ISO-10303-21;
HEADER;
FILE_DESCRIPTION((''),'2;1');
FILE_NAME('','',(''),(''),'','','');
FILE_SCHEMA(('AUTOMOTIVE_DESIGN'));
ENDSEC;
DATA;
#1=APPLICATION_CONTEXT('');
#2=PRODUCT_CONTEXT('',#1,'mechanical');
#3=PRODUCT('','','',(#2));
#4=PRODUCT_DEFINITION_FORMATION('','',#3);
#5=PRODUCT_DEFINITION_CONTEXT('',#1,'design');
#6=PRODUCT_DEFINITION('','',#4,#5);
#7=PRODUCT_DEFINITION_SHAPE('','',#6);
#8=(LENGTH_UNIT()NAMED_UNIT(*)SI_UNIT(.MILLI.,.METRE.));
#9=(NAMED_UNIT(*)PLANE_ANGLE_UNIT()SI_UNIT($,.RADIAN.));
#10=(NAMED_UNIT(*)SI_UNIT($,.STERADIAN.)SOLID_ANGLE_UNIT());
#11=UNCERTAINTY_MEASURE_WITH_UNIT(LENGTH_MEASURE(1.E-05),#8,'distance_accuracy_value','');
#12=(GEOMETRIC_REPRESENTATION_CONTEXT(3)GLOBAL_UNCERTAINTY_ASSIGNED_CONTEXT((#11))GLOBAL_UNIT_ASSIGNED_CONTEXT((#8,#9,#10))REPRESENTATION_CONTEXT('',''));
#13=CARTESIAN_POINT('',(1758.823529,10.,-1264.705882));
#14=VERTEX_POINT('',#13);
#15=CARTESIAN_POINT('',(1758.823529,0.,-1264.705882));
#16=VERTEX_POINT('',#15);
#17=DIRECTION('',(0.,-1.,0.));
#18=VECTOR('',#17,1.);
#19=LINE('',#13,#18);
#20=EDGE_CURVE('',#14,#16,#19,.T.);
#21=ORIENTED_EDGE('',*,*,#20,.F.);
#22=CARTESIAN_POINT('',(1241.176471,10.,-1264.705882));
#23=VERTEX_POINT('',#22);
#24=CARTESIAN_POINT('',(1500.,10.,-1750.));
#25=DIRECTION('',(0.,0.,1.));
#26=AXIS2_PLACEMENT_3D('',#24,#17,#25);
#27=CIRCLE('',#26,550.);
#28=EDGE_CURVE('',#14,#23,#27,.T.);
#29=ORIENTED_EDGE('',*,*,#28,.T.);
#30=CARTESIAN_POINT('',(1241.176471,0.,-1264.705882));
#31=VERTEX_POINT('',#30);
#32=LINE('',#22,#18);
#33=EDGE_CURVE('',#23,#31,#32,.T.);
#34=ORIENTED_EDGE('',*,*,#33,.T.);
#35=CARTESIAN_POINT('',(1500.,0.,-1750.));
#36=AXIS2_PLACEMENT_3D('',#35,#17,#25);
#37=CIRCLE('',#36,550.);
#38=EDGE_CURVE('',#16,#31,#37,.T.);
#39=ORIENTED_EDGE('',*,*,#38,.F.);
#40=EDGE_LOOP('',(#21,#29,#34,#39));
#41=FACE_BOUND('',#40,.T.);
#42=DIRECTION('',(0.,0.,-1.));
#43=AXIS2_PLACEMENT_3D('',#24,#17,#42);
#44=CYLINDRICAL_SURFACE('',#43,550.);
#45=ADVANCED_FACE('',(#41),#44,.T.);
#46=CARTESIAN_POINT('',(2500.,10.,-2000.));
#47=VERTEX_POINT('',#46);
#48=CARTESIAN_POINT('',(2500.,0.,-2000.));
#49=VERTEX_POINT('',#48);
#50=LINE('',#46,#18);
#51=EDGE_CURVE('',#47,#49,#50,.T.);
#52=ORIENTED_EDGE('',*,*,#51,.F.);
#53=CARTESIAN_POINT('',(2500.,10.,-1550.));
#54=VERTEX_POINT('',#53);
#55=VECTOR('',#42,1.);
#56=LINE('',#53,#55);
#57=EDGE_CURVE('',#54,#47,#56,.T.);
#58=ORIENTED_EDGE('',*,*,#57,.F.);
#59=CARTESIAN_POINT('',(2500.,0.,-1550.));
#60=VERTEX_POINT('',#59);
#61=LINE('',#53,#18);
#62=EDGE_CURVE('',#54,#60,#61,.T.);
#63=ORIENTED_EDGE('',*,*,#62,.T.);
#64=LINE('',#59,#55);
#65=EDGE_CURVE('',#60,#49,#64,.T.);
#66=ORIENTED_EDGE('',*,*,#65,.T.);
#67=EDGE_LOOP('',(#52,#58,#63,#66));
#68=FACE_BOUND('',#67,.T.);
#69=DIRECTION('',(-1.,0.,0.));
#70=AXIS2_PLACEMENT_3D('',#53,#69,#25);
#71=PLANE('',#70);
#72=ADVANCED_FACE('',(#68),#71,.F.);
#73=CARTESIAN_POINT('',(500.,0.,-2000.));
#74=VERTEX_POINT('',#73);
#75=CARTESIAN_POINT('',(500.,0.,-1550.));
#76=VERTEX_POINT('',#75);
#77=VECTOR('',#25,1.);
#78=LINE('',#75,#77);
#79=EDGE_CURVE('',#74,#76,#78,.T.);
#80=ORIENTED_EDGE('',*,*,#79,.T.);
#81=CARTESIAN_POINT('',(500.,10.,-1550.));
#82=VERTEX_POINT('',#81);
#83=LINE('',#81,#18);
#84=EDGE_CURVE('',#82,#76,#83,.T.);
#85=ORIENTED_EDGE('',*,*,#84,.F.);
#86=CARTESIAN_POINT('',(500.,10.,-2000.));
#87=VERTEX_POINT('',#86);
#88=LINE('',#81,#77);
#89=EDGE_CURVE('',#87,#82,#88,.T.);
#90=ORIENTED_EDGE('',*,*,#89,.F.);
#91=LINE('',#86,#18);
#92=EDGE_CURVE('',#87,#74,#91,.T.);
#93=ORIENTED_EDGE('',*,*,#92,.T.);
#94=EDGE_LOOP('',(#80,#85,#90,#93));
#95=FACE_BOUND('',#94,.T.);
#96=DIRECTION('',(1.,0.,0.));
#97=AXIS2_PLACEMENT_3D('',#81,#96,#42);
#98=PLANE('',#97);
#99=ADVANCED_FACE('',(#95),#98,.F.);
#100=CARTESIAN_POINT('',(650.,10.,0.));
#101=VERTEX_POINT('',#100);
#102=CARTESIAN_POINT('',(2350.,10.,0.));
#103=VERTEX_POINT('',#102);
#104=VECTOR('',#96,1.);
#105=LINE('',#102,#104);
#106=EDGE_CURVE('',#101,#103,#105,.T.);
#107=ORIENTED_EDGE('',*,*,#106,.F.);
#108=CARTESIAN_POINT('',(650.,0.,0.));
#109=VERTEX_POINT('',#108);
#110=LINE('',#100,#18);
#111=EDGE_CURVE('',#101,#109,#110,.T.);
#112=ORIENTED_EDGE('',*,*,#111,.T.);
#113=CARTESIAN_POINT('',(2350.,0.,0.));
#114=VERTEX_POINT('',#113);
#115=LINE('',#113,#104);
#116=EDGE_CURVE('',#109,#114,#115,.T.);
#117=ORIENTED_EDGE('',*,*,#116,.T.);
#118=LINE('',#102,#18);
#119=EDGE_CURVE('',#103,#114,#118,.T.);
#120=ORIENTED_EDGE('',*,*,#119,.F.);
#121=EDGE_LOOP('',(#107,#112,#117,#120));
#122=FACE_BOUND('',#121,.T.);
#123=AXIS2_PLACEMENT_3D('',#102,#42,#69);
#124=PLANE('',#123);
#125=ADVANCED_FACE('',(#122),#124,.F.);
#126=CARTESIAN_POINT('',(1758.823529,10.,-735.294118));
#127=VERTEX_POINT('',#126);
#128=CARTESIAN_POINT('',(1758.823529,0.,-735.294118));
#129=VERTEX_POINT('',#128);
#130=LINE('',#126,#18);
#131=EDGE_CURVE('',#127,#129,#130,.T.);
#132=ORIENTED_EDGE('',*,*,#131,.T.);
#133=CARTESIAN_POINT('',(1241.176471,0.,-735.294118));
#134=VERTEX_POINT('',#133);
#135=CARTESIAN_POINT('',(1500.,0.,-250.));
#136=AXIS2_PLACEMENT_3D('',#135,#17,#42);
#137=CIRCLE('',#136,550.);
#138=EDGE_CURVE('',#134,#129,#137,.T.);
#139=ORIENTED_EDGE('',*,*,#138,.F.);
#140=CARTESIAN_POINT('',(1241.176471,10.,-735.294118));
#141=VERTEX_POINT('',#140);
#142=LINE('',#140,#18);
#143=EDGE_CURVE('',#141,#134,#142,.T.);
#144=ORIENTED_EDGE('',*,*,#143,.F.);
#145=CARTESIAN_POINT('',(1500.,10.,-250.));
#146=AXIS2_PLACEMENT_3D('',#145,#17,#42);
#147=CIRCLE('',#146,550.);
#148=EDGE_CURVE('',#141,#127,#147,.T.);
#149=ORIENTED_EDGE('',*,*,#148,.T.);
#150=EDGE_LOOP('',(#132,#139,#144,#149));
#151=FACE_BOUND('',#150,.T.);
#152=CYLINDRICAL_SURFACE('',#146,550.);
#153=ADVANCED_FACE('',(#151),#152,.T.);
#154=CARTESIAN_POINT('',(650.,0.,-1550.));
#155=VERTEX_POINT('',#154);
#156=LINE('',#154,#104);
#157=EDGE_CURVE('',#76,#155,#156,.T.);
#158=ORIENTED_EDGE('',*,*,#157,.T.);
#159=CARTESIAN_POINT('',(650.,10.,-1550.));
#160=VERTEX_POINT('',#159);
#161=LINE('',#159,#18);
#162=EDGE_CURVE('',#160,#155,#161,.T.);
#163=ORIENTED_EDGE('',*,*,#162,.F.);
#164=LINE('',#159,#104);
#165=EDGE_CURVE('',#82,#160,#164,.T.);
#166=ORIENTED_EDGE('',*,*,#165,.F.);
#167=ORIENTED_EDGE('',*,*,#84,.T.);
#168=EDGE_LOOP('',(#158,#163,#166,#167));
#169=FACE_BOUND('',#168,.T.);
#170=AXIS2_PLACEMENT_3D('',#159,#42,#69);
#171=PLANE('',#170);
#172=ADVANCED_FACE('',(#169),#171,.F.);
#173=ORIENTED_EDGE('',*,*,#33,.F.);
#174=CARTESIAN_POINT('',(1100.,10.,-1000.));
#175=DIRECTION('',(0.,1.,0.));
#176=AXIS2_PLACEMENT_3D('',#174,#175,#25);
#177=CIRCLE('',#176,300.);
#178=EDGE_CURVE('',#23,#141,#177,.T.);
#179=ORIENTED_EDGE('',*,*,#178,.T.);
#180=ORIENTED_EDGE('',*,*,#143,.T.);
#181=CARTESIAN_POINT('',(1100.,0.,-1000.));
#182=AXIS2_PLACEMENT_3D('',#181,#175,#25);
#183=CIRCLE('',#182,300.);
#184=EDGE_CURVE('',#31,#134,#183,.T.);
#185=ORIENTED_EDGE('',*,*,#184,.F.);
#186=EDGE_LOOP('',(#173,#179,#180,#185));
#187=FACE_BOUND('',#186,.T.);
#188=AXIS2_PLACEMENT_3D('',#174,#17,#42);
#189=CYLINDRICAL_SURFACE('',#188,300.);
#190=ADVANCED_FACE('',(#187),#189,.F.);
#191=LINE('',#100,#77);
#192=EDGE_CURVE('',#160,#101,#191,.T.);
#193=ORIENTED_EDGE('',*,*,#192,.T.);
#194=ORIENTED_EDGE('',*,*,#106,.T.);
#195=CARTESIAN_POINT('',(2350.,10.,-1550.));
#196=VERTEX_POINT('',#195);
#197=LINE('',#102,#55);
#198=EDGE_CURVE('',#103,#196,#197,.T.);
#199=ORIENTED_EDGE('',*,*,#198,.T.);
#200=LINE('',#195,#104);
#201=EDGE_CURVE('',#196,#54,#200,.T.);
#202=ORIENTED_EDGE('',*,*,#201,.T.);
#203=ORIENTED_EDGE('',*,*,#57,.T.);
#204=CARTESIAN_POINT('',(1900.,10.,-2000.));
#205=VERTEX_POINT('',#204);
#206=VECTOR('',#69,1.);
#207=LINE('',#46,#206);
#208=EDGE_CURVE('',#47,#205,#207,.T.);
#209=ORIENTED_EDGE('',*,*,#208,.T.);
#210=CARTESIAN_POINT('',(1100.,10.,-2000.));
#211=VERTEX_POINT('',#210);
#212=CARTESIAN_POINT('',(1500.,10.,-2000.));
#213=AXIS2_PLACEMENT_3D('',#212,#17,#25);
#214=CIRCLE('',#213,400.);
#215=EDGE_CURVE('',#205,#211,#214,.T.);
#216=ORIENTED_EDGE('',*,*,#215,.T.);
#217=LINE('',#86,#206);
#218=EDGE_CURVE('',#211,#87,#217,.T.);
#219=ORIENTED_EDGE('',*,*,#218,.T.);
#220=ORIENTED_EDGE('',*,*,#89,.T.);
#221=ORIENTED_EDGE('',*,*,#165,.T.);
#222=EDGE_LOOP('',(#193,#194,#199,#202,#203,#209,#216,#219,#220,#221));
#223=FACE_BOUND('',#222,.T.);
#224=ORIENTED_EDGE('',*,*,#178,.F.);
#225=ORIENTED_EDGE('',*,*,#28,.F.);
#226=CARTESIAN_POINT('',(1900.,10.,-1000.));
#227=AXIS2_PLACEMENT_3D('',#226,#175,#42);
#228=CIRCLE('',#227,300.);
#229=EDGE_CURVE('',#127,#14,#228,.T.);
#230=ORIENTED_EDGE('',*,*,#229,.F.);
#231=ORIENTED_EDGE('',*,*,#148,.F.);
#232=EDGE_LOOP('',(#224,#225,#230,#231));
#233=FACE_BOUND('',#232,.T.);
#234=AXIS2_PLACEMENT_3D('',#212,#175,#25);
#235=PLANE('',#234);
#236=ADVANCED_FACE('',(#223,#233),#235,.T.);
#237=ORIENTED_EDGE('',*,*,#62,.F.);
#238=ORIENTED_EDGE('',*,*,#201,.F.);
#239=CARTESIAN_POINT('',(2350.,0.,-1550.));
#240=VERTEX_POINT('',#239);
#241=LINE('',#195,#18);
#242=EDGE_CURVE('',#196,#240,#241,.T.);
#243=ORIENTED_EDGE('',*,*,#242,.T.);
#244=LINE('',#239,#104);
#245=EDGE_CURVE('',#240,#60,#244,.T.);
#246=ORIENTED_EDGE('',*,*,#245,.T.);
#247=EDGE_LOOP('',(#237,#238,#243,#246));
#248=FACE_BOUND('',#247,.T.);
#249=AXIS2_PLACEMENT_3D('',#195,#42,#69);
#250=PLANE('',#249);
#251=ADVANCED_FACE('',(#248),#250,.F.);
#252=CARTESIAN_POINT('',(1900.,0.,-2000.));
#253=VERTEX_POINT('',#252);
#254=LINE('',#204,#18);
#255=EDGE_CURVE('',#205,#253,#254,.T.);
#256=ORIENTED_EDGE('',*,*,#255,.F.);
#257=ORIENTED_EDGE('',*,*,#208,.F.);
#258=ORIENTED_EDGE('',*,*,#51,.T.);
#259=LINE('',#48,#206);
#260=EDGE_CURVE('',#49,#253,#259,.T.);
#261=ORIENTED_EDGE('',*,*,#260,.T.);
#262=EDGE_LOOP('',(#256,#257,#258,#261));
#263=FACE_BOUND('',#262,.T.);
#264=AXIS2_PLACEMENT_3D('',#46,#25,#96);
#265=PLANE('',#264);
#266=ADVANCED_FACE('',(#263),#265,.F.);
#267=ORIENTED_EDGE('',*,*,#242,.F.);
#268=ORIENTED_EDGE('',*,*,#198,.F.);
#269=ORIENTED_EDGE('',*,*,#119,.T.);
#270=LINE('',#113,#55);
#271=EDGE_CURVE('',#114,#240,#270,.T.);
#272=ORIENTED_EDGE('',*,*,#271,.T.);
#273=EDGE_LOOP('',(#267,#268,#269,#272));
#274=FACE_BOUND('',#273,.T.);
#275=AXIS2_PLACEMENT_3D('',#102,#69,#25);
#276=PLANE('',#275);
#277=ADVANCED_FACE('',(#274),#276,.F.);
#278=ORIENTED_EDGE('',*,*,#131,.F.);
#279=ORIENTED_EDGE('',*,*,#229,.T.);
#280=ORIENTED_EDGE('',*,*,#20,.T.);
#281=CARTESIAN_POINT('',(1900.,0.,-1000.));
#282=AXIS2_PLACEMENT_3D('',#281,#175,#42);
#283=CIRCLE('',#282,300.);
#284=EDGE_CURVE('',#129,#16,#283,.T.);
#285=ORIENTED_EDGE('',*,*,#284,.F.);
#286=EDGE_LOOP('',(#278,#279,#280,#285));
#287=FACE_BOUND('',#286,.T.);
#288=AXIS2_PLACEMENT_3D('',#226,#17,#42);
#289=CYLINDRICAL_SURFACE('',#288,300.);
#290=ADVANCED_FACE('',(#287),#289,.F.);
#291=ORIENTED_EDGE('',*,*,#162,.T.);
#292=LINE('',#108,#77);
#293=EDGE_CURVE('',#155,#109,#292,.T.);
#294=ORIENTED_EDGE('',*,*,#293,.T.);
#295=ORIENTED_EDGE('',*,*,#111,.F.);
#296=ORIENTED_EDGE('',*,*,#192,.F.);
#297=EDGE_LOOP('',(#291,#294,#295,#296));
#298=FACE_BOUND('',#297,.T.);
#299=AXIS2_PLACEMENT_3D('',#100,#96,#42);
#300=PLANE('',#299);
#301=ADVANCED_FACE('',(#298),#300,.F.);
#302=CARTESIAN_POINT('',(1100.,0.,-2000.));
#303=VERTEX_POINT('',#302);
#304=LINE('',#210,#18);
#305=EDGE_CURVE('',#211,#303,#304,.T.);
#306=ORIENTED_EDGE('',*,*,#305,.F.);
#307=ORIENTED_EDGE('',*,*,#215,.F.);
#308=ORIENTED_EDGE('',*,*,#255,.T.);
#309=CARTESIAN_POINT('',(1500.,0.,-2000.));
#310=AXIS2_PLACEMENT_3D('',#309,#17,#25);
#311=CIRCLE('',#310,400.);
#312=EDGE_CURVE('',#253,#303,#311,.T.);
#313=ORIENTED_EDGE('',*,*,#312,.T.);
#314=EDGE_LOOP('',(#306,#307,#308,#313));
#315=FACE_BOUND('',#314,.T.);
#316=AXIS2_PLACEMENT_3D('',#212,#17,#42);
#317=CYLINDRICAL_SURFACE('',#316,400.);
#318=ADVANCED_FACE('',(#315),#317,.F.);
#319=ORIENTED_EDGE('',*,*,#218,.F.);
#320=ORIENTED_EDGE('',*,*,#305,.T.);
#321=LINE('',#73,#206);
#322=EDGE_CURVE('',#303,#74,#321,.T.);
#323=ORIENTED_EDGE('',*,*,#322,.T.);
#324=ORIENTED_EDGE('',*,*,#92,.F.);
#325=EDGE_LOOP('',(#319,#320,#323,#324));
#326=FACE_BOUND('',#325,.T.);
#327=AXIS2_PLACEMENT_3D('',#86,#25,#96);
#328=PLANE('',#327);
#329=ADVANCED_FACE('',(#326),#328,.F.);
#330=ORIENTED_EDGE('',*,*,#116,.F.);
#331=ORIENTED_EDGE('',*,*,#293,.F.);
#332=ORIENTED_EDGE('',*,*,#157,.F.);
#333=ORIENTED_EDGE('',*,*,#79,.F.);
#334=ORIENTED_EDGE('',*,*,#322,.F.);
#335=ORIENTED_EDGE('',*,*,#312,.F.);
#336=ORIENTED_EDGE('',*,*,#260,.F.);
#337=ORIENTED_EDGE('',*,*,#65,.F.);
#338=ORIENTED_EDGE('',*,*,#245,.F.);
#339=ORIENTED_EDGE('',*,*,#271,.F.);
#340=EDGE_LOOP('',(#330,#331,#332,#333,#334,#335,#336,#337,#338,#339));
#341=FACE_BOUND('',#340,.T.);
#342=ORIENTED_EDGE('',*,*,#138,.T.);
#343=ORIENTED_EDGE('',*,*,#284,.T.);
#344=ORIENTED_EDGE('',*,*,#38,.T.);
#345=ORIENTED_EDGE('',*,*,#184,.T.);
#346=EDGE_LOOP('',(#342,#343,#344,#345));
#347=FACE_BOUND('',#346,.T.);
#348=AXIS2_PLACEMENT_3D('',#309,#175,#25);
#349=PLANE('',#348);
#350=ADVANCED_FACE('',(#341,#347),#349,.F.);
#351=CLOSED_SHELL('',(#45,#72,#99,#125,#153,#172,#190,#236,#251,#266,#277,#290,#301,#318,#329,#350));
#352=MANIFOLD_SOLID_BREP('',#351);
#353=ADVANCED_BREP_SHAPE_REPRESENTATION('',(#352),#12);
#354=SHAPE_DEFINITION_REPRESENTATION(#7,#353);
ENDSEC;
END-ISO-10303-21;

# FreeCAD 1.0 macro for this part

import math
import FreeCAD as App
import Part
import Sketcher

V = App.Vector

doc = App.newDocument("Part")
params = doc.addObject("Spreadsheet::Sheet", "Params")
for row, (alias, value) in enumerate([
    ("sketch1_radius", "400 mm"),
    ("sketch1_radius2", "550 mm"),
    ("sketch1_radius3", "300 mm"),
    ("sketch1_width", "1700 mm"),
    ("sketch1_width2", "150 mm"),
    ("pad1_length", "10 mm"),
], start=1):
    params.set(f"A{row}", alias)
    params.set(f"B{row}", "=" + value)
    params.setAlias(f"B{row}", alias)

body = doc.addObject("PartDesign::Body", "Body")

# Sketch on XZ plane
sketch1 = doc.addObject("Sketcher::SketchObject", "Sketch")
body.addObject(sketch1)
sketch1.AttachmentSupport = (doc.XZ_Plane, [""])
sketch1.MapMode = "FlatFace"
sketch1.addGeometry([
    Part.LineSegment(V(650, 0, 0), V(2350, 0, 0)),  # 0
    Part.LineSegment(V(2350, 0, 0), V(2350, -1550, 0)),  # 1
    Part.LineSegment(V(2350, -1550, 0), V(2500, -1550, 0)),  # 2
    Part.LineSegment(V(2500, -1550, 0), V(2500, -2000, 0)),  # 3
    Part.LineSegment(V(2500, -2000, 0), V(1900, -2000, 0)),  # 4
    Part.ArcOfCircle(Part.Circle(V(1500, -2000, 0), V(0, 0, 1), 400), math.radians(0), math.radians(180)),  # 5
    Part.LineSegment(V(1100, -2000, 0), V(500, -2000, 0)),  # 6
    Part.LineSegment(V(500, -2000, 0), V(500, -1550, 0)),  # 7
    Part.LineSegment(V(500, -1550, 0), V(650, -1550, 0)),  # 8
    Part.LineSegment(V(650, -1550, 0), V(650, 0, 0)),  # 9
    Part.ArcOfCircle(Part.Circle(V(1500, -1750, 0), V(0, 0, 1), 550), math.radians(62), math.radians(118)),  # 10
    Part.ArcOfCircle(Part.Circle(V(1900, -1000, 0), V(0, 0, 1), 300), math.radians(-118), math.radians(118)),  # 11
    Part.ArcOfCircle(Part.Circle(V(1500, -250, 0), V(0, 0, 1), 550), math.radians(-118), math.radians(-62)),  # 12
    Part.ArcOfCircle(Part.Circle(V(1100, -1000, 0), V(0, 0, 1), 300), math.radians(62), math.radians(298)),  # 13
], False)
sketch1.addConstraint([
    Sketcher.Constraint("Coincident", 0, 2, 1, 1),
    Sketcher.Constraint("Coincident", 1, 2, 2, 1),
    Sketcher.Constraint("Coincident", 2, 2, 3, 1),
    Sketcher.Constraint("Coincident", 3, 2, 4, 1),
    Sketcher.Constraint("Coincident", 4, 2, 5, 1),
    Sketcher.Constraint("Coincident", 5, 2, 6, 1),
    Sketcher.Constraint("Coincident", 6, 2, 7, 1),
    Sketcher.Constraint("Coincident", 7, 2, 8, 1),
    Sketcher.Constraint("Coincident", 8, 2, 9, 1),
    Sketcher.Constraint("Coincident", 9, 2, 0, 1),
    Sketcher.Constraint("Tangent", 10, 1, 11, 1),
    Sketcher.Constraint("Tangent", 11, 2, 12, 2),
    Sketcher.Constraint("Tangent", 12, 1, 13, 1),
    Sketcher.Constraint("Tangent", 13, 2, 10, 2),
    Sketcher.Constraint("Horizontal", 0),
    Sketcher.Constraint("Vertical", 1),
    Sketcher.Constraint("Horizontal", 2),
    Sketcher.Constraint("Vertical", 3),
    Sketcher.Constraint("Horizontal", 4),
    Sketcher.Constraint("Horizontal", 6),
    Sketcher.Constraint("Vertical", 7),
    Sketcher.Constraint("Horizontal", 8),
    Sketcher.Constraint("Vertical", 9),
    Sketcher.Constraint("Equal", 10, 12),
    Sketcher.Constraint("Equal", 11, 13),
    Sketcher.Constraint("PointOnObject", 0, 2, -1),
    Sketcher.Constraint("Horizontal", 11, 3, 13, 3),
    Sketcher.Constraint("Horizontal", 5, 3, 3, 2),
    Sketcher.Constraint("Horizontal", 2, 2, 7, 2),
    Sketcher.Constraint("Vertical", 5, 3, 10, 3),
    Sketcher.Constraint("Vertical", 11, 3, 4, 2),
    Sketcher.Constraint("Equal", 4, 6),
    Sketcher.Constraint("Equal", 2, 8),
    Sketcher.Constraint("Equal", 3, 7),
    Sketcher.Constraint("Radius", 5, 400.0),
    Sketcher.Constraint("Radius", 10, 550.0),
    Sketcher.Constraint("Radius", 11, 300.0),
    Sketcher.Constraint("DistanceX", 0, 1, 0, 2, 1700.0),
    Sketcher.Constraint("DistanceX", 2, 1, 2, 2, 150.0),
    Sketcher.Constraint("DistanceY", 1, 2, 1, 1, 1550.0),
    Sketcher.Constraint("DistanceY", 3, 2, 3, 1, 450.0),
    Sketcher.Constraint("DistanceX", -1, 1, 5, 3, 1500.0),
    Sketcher.Constraint("DistanceY", 10, 3, -1, 1, 1750.0),
])
sketch1.setExpression("Constraints[34]", "Params.sketch1_radius")
sketch1.setExpression("Constraints[35]", "Params.sketch1_radius2")
sketch1.setExpression("Constraints[36]", "Params.sketch1_radius3")
sketch1.setExpression("Constraints[37]", "Params.sketch1_width")
sketch1.setExpression("Constraints[38]", "Params.sketch1_width2")
pad1 = doc.addObject("PartDesign::Pad", "Pad")
body.addObject(pad1)
pad1.Profile = sketch1
pad1.setExpression("Length", "Params.pad1_length")
pad1.Reversed = True

doc.recompute()
